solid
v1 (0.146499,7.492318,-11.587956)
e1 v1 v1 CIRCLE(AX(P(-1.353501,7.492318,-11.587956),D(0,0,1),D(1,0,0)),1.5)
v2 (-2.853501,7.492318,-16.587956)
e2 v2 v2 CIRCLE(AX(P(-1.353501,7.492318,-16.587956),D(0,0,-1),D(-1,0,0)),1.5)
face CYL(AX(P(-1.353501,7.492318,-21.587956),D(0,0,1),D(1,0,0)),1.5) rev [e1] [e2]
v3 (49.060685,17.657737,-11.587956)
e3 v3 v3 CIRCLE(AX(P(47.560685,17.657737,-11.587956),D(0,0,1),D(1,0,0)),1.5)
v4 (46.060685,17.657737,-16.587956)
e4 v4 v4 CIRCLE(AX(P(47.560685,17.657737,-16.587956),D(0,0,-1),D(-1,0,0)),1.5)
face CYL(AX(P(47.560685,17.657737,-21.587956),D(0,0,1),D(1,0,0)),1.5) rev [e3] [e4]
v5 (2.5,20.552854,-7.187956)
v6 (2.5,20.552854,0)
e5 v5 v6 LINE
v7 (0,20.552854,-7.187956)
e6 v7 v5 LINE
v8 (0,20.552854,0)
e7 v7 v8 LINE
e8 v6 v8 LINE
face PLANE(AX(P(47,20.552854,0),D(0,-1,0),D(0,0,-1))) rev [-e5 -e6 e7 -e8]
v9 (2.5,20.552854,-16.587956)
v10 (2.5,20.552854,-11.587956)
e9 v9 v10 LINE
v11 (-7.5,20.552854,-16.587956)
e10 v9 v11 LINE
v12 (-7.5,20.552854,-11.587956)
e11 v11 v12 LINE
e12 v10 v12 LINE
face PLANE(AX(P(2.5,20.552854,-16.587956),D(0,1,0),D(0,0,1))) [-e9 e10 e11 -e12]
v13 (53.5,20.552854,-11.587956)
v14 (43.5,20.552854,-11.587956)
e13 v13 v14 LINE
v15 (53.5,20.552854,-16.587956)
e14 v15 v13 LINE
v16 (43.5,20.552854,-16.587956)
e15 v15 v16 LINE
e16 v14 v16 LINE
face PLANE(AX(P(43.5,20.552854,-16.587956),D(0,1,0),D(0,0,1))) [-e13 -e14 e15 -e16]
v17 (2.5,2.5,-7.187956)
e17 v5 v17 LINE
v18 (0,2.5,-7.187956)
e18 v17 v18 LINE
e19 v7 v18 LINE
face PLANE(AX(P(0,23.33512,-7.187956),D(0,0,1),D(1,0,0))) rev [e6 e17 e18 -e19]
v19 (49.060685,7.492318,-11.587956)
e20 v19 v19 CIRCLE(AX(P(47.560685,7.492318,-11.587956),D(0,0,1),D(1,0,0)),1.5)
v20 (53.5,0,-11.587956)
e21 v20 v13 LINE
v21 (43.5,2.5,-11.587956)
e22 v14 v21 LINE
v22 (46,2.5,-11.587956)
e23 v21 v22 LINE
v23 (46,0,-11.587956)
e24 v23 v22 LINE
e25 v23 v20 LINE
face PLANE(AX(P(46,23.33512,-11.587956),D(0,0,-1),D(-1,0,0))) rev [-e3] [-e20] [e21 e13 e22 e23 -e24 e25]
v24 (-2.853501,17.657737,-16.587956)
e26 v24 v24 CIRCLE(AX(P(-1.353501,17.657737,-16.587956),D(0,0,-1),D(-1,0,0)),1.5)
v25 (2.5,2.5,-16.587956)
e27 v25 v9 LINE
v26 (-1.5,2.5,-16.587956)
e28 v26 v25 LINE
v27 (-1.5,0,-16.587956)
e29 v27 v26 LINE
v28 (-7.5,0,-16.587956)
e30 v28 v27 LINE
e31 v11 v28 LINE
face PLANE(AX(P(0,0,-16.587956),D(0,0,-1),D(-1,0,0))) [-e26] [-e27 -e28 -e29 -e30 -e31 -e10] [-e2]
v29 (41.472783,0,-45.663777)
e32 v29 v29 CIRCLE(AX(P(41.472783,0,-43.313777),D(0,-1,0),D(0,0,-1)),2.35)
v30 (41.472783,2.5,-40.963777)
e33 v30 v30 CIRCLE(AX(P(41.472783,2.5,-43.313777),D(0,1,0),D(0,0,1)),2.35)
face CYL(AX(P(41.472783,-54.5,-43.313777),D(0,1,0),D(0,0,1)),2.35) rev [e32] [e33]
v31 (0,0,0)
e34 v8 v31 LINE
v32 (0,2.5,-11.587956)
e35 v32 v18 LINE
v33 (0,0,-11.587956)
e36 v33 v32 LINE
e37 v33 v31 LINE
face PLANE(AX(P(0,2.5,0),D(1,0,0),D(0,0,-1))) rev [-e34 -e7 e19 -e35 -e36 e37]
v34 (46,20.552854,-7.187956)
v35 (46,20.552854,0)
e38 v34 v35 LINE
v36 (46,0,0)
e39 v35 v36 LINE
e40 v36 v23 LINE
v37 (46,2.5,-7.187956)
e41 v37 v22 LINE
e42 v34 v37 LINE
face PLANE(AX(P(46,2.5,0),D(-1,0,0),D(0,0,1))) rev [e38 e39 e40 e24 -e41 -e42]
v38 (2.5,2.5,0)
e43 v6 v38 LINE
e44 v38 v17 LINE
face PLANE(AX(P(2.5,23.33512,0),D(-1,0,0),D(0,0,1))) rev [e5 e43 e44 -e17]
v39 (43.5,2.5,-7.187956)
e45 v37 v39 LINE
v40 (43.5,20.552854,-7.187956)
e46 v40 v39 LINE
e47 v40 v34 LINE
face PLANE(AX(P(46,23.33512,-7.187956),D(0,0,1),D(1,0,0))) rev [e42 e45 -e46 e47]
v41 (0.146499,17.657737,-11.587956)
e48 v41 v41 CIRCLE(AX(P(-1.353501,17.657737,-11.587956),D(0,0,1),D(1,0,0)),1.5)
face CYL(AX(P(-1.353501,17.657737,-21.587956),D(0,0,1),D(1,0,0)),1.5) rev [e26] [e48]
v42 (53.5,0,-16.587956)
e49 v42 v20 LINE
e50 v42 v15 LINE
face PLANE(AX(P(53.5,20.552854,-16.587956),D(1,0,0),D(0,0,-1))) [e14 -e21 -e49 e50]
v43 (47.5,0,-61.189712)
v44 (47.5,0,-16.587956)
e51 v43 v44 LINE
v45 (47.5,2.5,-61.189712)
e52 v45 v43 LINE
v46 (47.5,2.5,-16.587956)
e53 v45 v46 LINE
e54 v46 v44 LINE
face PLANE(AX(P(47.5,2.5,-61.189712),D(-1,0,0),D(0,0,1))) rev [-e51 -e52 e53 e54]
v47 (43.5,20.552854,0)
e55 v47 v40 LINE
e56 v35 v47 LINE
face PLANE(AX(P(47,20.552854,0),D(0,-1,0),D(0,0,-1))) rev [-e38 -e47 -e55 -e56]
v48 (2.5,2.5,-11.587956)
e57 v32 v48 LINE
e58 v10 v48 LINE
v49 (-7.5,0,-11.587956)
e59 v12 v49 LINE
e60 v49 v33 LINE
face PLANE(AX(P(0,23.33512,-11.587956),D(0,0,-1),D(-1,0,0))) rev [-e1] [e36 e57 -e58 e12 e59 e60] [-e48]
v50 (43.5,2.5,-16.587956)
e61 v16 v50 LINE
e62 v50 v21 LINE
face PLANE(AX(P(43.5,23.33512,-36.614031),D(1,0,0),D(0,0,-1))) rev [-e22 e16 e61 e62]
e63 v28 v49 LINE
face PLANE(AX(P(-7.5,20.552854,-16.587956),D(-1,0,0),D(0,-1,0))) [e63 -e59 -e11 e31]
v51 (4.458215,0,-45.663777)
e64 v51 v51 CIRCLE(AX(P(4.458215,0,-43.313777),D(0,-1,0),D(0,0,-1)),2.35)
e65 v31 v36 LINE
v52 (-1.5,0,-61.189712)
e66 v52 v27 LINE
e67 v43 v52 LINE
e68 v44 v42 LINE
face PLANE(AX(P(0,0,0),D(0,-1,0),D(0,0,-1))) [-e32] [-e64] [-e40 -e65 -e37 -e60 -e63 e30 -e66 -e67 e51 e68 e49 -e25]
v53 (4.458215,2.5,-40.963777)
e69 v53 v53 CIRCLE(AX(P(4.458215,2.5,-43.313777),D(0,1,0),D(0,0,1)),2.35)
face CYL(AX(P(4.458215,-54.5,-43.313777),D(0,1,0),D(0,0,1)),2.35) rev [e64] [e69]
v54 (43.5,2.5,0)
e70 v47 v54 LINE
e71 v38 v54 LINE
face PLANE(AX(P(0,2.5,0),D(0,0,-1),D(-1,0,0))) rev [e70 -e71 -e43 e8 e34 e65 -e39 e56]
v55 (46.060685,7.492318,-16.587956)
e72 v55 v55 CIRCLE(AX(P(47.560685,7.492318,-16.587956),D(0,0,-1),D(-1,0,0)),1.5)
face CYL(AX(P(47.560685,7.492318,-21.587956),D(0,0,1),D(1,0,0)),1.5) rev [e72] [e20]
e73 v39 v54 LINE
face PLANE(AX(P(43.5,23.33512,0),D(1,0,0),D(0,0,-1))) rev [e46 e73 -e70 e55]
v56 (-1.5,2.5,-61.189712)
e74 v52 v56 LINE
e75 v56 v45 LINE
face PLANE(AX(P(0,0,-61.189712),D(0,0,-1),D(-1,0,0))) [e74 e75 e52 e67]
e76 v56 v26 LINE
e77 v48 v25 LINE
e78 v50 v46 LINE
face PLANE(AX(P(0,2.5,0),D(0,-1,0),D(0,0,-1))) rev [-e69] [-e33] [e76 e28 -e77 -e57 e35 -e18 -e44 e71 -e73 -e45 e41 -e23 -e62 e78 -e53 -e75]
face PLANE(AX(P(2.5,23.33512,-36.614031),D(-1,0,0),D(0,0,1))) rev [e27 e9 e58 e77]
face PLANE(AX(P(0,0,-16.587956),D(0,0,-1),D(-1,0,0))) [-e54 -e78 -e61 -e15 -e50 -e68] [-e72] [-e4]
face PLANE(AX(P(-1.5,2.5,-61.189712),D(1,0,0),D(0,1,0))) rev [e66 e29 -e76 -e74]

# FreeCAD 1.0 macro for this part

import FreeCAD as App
import Part
import Sketcher
Q = App.Units.Quantity

doc = App.newDocument("Part")
body = doc.addObject("PartDesign::Body", "Body")

# Sketch on XZ plane
sketch1 = body.newObject("Sketcher::SketchObject", "Sketch")
sketch1.AttachmentSupport = (doc.getObject("XZ_Plane"), [""])
sketch1.MapMode = "FlatFace"
sketch1.addGeometry(Part.LineSegment(App.Vector(0, -36.614031, 0), App.Vector(0, 0, 0)), False)
sketch1.addGeometry(Part.LineSegment(App.Vector(0, 0, 0), App.Vector(46, 0, 0)), False)
sketch1.addGeometry(Part.LineSegment(App.Vector(46, 0, 0), App.Vector(46, -36.614031, 0)), False)
sketch1.addGeometry(Part.LineSegment(App.Vector(46, -36.614031, 0), App.Vector(0, -36.614031, 0)), False)
sketch1.addConstraint(Sketcher.Constraint("Coincident", 0, 2, 1, 1))
sketch1.addConstraint(Sketcher.Constraint("Coincident", 1, 2, 2, 1))
sketch1.addConstraint(Sketcher.Constraint("Coincident", 2, 2, 3, 1))
sketch1.addConstraint(Sketcher.Constraint("Coincident", 3, 2, 0, 1))
sketch1.addConstraint(Sketcher.Constraint("Vertical", 0))
sketch1.addConstraint(Sketcher.Constraint("Horizontal", 1))
sketch1.addConstraint(Sketcher.Constraint("Vertical", 2))
sketch1.addConstraint(Sketcher.Constraint("Horizontal", 3))
sketch1.addConstraint(Sketcher.Constraint("Coincident", 0, 2, -1, 1))
sketch1.addConstraint(Sketcher.Constraint("DistanceX", 1, 1, 1, 2, Q("46 mm")))
sketch1.addConstraint(Sketcher.Constraint("DistanceY", 0, 1, 0, 2, Q("36.614031 mm")))
pad1 = body.newObject("PartDesign::Pad", "Pad")
pad1.Profile = sketch1
pad1.Length = 2.5
pad1.Reversed = True

# Sketch on XZ plane
sketch2 = body.newObject("Sketcher::SketchObject", "Sketch001")
sketch2.AttachmentSupport = (doc.getObject("XZ_Plane"), [""])
sketch2.MapMode = "FlatFace"
sketch2.AttachmentOffset = App.Placement(App.Vector(0, 0, -2.5), App.Rotation())
sketch2.addGeometry(Part.LineSegment(App.Vector(0, -36.614031, 0), App.Vector(0, -11.587956, 0)), False)
sketch2.addGeometry(Part.LineSegment(App.Vector(0, -11.587956, 0), App.Vector(2.5, -11.587956, 0)), False)
sketch2.addGeometry(Part.LineSegment(App.Vector(2.5, -11.587956, 0), App.Vector(2.5, -36.614031, 0)), False)
sketch2.addGeometry(Part.LineSegment(App.Vector(2.5, -36.614031, 0), App.Vector(0, -36.614031, 0)), False)
sketch2.addGeometry(Part.LineSegment(App.Vector(0, -7.187956, 0), App.Vector(0, 0, 0)), False)
sketch2.addGeometry(Part.LineSegment(App.Vector(0, 0, 0), App.Vector(2.5, 0, 0)), False)
sketch2.addGeometry(Part.LineSegment(App.Vector(2.5, 0, 0), App.Vector(2.5, -7.187956, 0)), False)
sketch2.addGeometry(Part.LineSegment(App.Vector(2.5, -7.187956, 0), App.Vector(0, -7.187956, 0)), False)
sketch2.addGeometry(Part.LineSegment(App.Vector(43.5, -7.187956, 0), App.Vector(43.5, 0, 0)), False)
sketch2.addGeometry(Part.LineSegment(App.Vector(43.5, 0, 0), App.Vector(46, 0, 0)), False)
sketch2.addGeometry(Part.LineSegment(App.Vector(46, 0, 0), App.Vector(46, -7.187956, 0)), False)
sketch2.addGeometry(Part.LineSegment(App.Vector(46, -7.187956, 0), App.Vector(43.5, -7.187956, 0)), False)
sketch2.addGeometry(Part.LineSegment(App.Vector(43.5, -36.614031, 0), App.Vector(43.5, -11.587956, 0)), False)
sketch2.addGeometry(Part.LineSegment(App.Vector(43.5, -11.587956, 0), App.Vector(46, -11.587956, 0)), False)
sketch2.addGeometry(Part.LineSegment(App.Vector(46, -11.587956, 0), App.Vector(46, -36.614031, 0)), False)
sketch2.addGeometry(Part.LineSegment(App.Vector(46, -36.614031, 0), App.Vector(43.5, -36.614031, 0)), False)
sketch2.addConstraint(Sketcher.Constraint("Coincident", 0, 2, 1, 1))
sketch2.addConstraint(Sketcher.Constraint("Coincident", 1, 2, 2, 1))
sketch2.addConstraint(Sketcher.Constraint("Coincident", 2, 2, 3, 1))
sketch2.addConstraint(Sketcher.Constraint("Coincident", 3, 2, 0, 1))
sketch2.addConstraint(Sketcher.Constraint("Coincident", 4, 2, 5, 1))
sketch2.addConstraint(Sketcher.Constraint("Coincident", 5, 2, 6, 1))
sketch2.addConstraint(Sketcher.Constraint("Coincident", 6, 2, 7, 1))
sketch2.addConstraint(Sketcher.Constraint("Coincident", 7, 2, 4, 1))
sketch2.addConstraint(Sketcher.Constraint("Coincident", 8, 2, 9, 1))
sketch2.addConstraint(Sketcher.Constraint("Coincident", 9, 2, 10, 1))
sketch2.addConstraint(Sketcher.Constraint("Coincident", 10, 2, 11, 1))
sketch2.addConstraint(Sketcher.Constraint("Coincident", 11, 2, 8, 1))
sketch2.addConstraint(Sketcher.Constraint("Coincident", 12, 2, 13, 1))
sketch2.addConstraint(Sketcher.Constraint("Coincident", 13, 2, 14, 1))
sketch2.addConstraint(Sketcher.Constraint("Coincident", 14, 2, 15, 1))
sketch2.addConstraint(Sketcher.Constraint("Coincident", 15, 2, 12, 1))
sketch2.addConstraint(Sketcher.Constraint("Vertical", 0))
sketch2.addConstraint(Sketcher.Constraint("Horizontal", 1))
sketch2.addConstraint(Sketcher.Constraint("Vertical", 2))
sketch2.addConstraint(Sketcher.Constraint("Horizontal", 3))
sketch2.addConstraint(Sketcher.Constraint("Vertical", 4))
sketch2.addConstraint(Sketcher.Constraint("Horizontal", 5))
sketch2.addConstraint(Sketcher.Constraint("Vertical", 6))
sketch2.addConstraint(Sketcher.Constraint("Horizontal", 7))
sketch2.addConstraint(Sketcher.Constraint("Vertical", 8))
sketch2.addConstraint(Sketcher.Constraint("Horizontal", 9))
sketch2.addConstraint(Sketcher.Constraint("Vertical", 10))
sketch2.addConstraint(Sketcher.Constraint("Horizontal", 11))
sketch2.addConstraint(Sketcher.Constraint("Vertical", 12))
sketch2.addConstraint(Sketcher.Constraint("Horizontal", 13))
sketch2.addConstraint(Sketcher.Constraint("Vertical", 14))
sketch2.addConstraint(Sketcher.Constraint("Horizontal", 15))
sketch2.addConstraint(Sketcher.Constraint("Coincident", 4, 2, -1, 1))
sketch2.addConstraint(Sketcher.Constraint("PointOnObject", 0, 2, -2))
sketch2.addConstraint(Sketcher.Constraint("PointOnObject", 8, 2, -1))
sketch2.addConstraint(Sketcher.Constraint("Horizontal", 7, 2, 10, 2))
sketch2.addConstraint(Sketcher.Constraint("Horizontal", 1, 2, 12, 2))
sketch2.addConstraint(Sketcher.Constraint("Horizontal", 3, 2, 14, 2))
sketch2.addConstraint(Sketcher.Constraint("Vertical", 2, 2, 5, 2))
sketch2.addConstraint(Sketcher.Constraint("Vertical", 11, 2, 12, 2))
sketch2.addConstraint(Sketcher.Constraint("Vertical", 10, 2, 13, 2))
sketch2.addConstraint(Sketcher.Constraint("Equal", 7, 9))
sketch2.addConstraint(Sketcher.Constraint("DistanceX", 1, 1, 1, 2, Q("2.5 mm")))
sketch2.addConstraint(Sketcher.Constraint("DistanceX", -1, 1, 9, 2, Q("46 mm")))
sketch2.addConstraint(Sketcher.Constraint("DistanceY", 1, 2, 6, 2, Q("4.4 mm")))
sketch2.addConstraint(Sketcher.Constraint("DistanceY", 0, 1, 0, 2, Q("25.026075 mm")))
sketch2.addConstraint(Sketcher.Constraint("DistanceY", 4, 1, 4, 2, Q("7.187956 mm")))
pad2 = body.newObject("PartDesign::Pad", "Pad001")
pad2.Profile = sketch2
pad2.Length = 20.83512
pad2.Reversed = True

# Sketch on XY plane
sketch3 = body.newObject("Sketcher::SketchObject", "Sketch002")
sketch3.AttachmentSupport = (doc.getObject("XY_Plane"), [""])
sketch3.MapMode = "FlatFace"
sketch3.AttachmentOffset = App.Placement(App.Vector(0, 0, -11.587956), App.Rotation())
sketch3.addGeometry(Part.LineSegment(App.Vector(-7.5, 20.552854, 0), App.Vector(-7.5, 0, 0)), False)
sketch3.addGeometry(Part.LineSegment(App.Vector(-7.5, 0, 0), App.Vector(2.5, 0, 0)), False)
sketch3.addGeometry(Part.LineSegment(App.Vector(2.5, 0, 0), App.Vector(2.5, 20.552854, 0)), False)
sketch3.addGeometry(Part.LineSegment(App.Vector(2.5, 20.552854, 0), App.Vector(-7.5, 20.552854, 0)), False)
sketch3.addGeometry(Part.LineSegment(App.Vector(43.5, 20.552854, 0), App.Vector(43.5, 0, 0)), False)
sketch3.addGeometry(Part.LineSegment(App.Vector(43.5, 0, 0), App.Vector(53.5, 0, 0)), False)
sketch3.addGeometry(Part.LineSegment(App.Vector(53.5, 0, 0), App.Vector(53.5, 20.552854, 0)), False)
sketch3.addGeometry(Part.LineSegment(App.Vector(53.5, 20.552854, 0), App.Vector(43.5, 20.552854, 0)), False)
sketch3.addConstraint(Sketcher.Constraint("Coincident", 0, 2, 1, 1))
sketch3.addConstraint(Sketcher.Constraint("Coincident", 1, 2, 2, 1))
sketch3.addConstraint(Sketcher.Constraint("Coincident", 2, 2, 3, 1))
sketch3.addConstraint(Sketcher.Constraint("Coincident", 3, 2, 0, 1))
sketch3.addConstraint(Sketcher.Constraint("Coincident", 4, 2, 5, 1))
sketch3.addConstraint(Sketcher.Constraint("Coincident", 5, 2, 6, 1))
sketch3.addConstraint(Sketcher.Constraint("Coincident", 6, 2, 7, 1))
sketch3.addConstraint(Sketcher.Constraint("Coincident", 7, 2, 4, 1))
sketch3.addConstraint(Sketcher.Constraint("Vertical", 0))
sketch3.addConstraint(Sketcher.Constraint("Horizontal", 1))
sketch3.addConstraint(Sketcher.Constraint("Vertical", 2))
sketch3.addConstraint(Sketcher.Constraint("Horizontal", 3))
sketch3.addConstraint(Sketcher.Constraint("Vertical", 4))
sketch3.addConstraint(Sketcher.Constraint("Horizontal", 5))
sketch3.addConstraint(Sketcher.Constraint("Vertical", 6))
sketch3.addConstraint(Sketcher.Constraint("Horizontal", 7))
sketch3.addConstraint(Sketcher.Constraint("PointOnObject", 0, 2, -1))
sketch3.addConstraint(Sketcher.Constraint("PointOnObject", 4, 2, -1))
sketch3.addConstraint(Sketcher.Constraint("Horizontal", 3, 2, 6, 2))
sketch3.addConstraint(Sketcher.Constraint("Equal", 3, 5))
sketch3.addConstraint(Sketcher.Constraint("DistanceX", 1, 1, 1, 2, Q("10 mm")))
sketch3.addConstraint(Sketcher.Constraint("DistanceX", 1, 2, 4, 2, Q("41 mm")))
sketch3.addConstraint(Sketcher.Constraint("DistanceX", 0, 2, -1, 1, Q("7.5 mm")))
sketch3.addConstraint(Sketcher.Constraint("DistanceY", 0, 2, 0, 1, Q("20.552854 mm")))
pad3 = body.newObject("PartDesign::Pad", "Pad002")
pad3.Profile = sketch3
pad3.Length = 5
pad3.Reversed = True

# Sketch on YZ plane
sketch4 = body.newObject("Sketcher::SketchObject", "Sketch003")
sketch4.AttachmentSupport = (doc.getObject("YZ_Plane"), [""])
sketch4.MapMode = "FlatFace"
sketch4.addGeometry(Part.LineSegment(App.Vector(23.33512, -36.614031, 0), App.Vector(0, -36.614031, 0)), False)
sketch4.addGeometry(Part.LineSegment(App.Vector(0, -36.614031, 0), App.Vector(0, -16.587956, 0)), False)
sketch4.addGeometry(Part.LineSegment(App.Vector(0, -16.587956, 0), App.Vector(23.33512, -16.587956, 0)), False)
sketch4.addGeometry(Part.LineSegment(App.Vector(23.33512, -16.587956, 0), App.Vector(23.33512, -36.614031, 0)), False)
sketch4.addConstraint(Sketcher.Constraint("Coincident", 0, 2, 1, 1))
sketch4.addConstraint(Sketcher.Constraint("Coincident", 1, 2, 2, 1))
sketch4.addConstraint(Sketcher.Constraint("Coincident", 2, 2, 3, 1))
sketch4.addConstraint(Sketcher.Constraint("Coincident", 3, 2, 0, 1))
sketch4.addConstraint(Sketcher.Constraint("Horizontal", 0))
sketch4.addConstraint(Sketcher.Constraint("Vertical", 1))
sketch4.addConstraint(Sketcher.Constraint("Horizontal", 2))
sketch4.addConstraint(Sketcher.Constraint("Vertical", 3))
sketch4.addConstraint(Sketcher.Constraint("PointOnObject", 0, 2, -2))
sketch4.addConstraint(Sketcher.Constraint("DistanceX", 0, 2, 0, 1, Q("23.33512 mm")))
sketch4.addConstraint(Sketcher.Constraint("DistanceY", 1, 1, 1, 2, Q("20.026075 mm")))
sketch4.addConstraint(Sketcher.Constraint("DistanceY", 0, 2, -1, 1, Q("36.614031 mm")))
pocket1 = body.newObject("PartDesign::Pocket", "Pocket")
pocket1.Profile = sketch4
pocket1.Length = 100
pocket1.Reversed = True

# Sketch on XY plane
sketch5 = body.newObject("Sketcher::SketchObject", "Sketch004")
sketch5.AttachmentSupport = (doc.getObject("XY_Plane"), [""])
sketch5.MapMode = "FlatFace"
sketch5.AttachmentOffset = App.Placement(App.Vector(0, 0, -16.587956), App.Rotation())
sketch5.addGeometry(Part.LineSegment(App.Vector(47.5, 2.5, 0), App.Vector(47.5, 0, 0)), False)
sketch5.addGeometry(Part.LineSegment(App.Vector(47.5, 0, 0), App.Vector(-1.5, 0, 0)), False)
sketch5.addGeometry(Part.LineSegment(App.Vector(-1.5, 0, 0), App.Vector(-1.5, 2.5, 0)), False)
sketch5.addGeometry(Part.LineSegment(App.Vector(-1.5, 2.5, 0), App.Vector(47.5, 2.5, 0)), False)
sketch5.addConstraint(Sketcher.Constraint("Coincident", 0, 2, 1, 1))
sketch5.addConstraint(Sketcher.Constraint("Coincident", 1, 2, 2, 1))
sketch5.addConstraint(Sketcher.Constraint("Coincident", 2, 2, 3, 1))
sketch5.addConstraint(Sketcher.Constraint("Coincident", 3, 2, 0, 1))
sketch5.addConstraint(Sketcher.Constraint("Vertical", 0))
sketch5.addConstraint(Sketcher.Constraint("Horizontal", 1))
sketch5.addConstraint(Sketcher.Constraint("Vertical", 2))
sketch5.addConstraint(Sketcher.Constraint("Horizontal", 3))
sketch5.addConstraint(Sketcher.Constraint("PointOnObject", 0, 2, -1))
sketch5.addConstraint(Sketcher.Constraint("DistanceX", 1, 2, 1, 1, Q("49 mm")))
sketch5.addConstraint(Sketcher.Constraint("DistanceY", 0, 2, 0, 1, Q("2.5 mm")))
sketch5.addConstraint(Sketcher.Constraint("DistanceX", -1, 1, 0, 2, Q("47.5 mm")))
pad4 = body.newObject("PartDesign::Pad", "Pad003")
pad4.Profile = sketch5
pad4.Length = 44.601757
pad4.Reversed = True

# Sketch on XZ plane
sketch6 = body.newObject("Sketcher::SketchObject", "Sketch005")
sketch6.AttachmentSupport = (doc.getObject("XZ_Plane"), [""])
sketch6.MapMode = "FlatFace"
sketch6.AttachmentOffset = App.Placement(App.Vector(0, 0, -2.5), App.Rotation())
sketch6.addGeometry(Part.Circle(App.Vector(4.458215, -43.313777, 0), App.Vector(0, 0, 1), 2.35), False)
sketch6.addGeometry(Part.Circle(App.Vector(41.472783, -43.313777, 0), App.Vector(0, 0, 1), 2.35), False)
sketch6.addConstraint(Sketcher.Constraint("Equal", 0, 1))
sketch6.addConstraint(Sketcher.Constraint("Horizontal", 0, 3, 1, 3))
sketch6.addConstraint(Sketcher.Constraint("Diameter", 0, Q("4.7 mm")))
sketch6.addConstraint(Sketcher.Constraint("DistanceX", 0, 3, 1, 3, Q("37.014568 mm")))
sketch6.addConstraint(Sketcher.Constraint("DistanceX", -1, 1, 0, 3, Q("4.458215 mm")))
sketch6.addConstraint(Sketcher.Constraint("DistanceY", 0, 3, -1, 1, Q("43.313777 mm")))
pocket2 = body.newObject("PartDesign::Pocket", "Pocket001")
pocket2.Profile = sketch6
pocket2.Length = 57
pocket2.Reversed = True

# Sketch on YZ plane
sketch7 = body.newObject("Sketcher::SketchObject", "Sketch006")
sketch7.AttachmentSupport = (doc.getObject("YZ_Plane"), [""])
sketch7.MapMode = "FlatFace"
sketch7.addGeometry(Part.LineSegment(App.Vector(23.33512, -16.587956, 0), App.Vector(20.552854, -16.587956, 0)), False)
sketch7.addGeometry(Part.LineSegment(App.Vector(20.552854, -16.587956, 0), App.Vector(20.552854, 0, 0)), False)
sketch7.addGeometry(Part.LineSegment(App.Vector(20.552854, 0, 0), App.Vector(23.33512, 0, 0)), False)
sketch7.addGeometry(Part.LineSegment(App.Vector(23.33512, 0, 0), App.Vector(23.33512, -16.587956, 0)), False)
sketch7.addConstraint(Sketcher.Constraint("Coincident", 0, 2, 1, 1))
sketch7.addConstraint(Sketcher.Constraint("Coincident", 1, 2, 2, 1))
sketch7.addConstraint(Sketcher.Constraint("Coincident", 2, 2, 3, 1))
sketch7.addConstraint(Sketcher.Constraint("Coincident", 3, 2, 0, 1))
sketch7.addConstraint(Sketcher.Constraint("Horizontal", 0))
sketch7.addConstraint(Sketcher.Constraint("Vertical", 1))
sketch7.addConstraint(Sketcher.Constraint("Horizontal", 2))
sketch7.addConstraint(Sketcher.Constraint("Vertical", 3))
sketch7.addConstraint(Sketcher.Constraint("PointOnObject", 1, 2, -1))
sketch7.addConstraint(Sketcher.Constraint("DistanceX", 0, 2, 0, 1, Q("2.782265 mm")))
sketch7.addConstraint(Sketcher.Constraint("DistanceY", 1, 1, 1, 2, Q("16.587956 mm")))
sketch7.addConstraint(Sketcher.Constraint("DistanceX", -1, 1, 2, 2, Q("23.33512 mm")))
pocket3 = body.newObject("PartDesign::Pocket", "Pocket002")
pocket3.Profile = sketch7
pocket3.Length = 47
pocket3.Reversed = True

# Sketch on XY plane
sketch8 = body.newObject("Sketcher::SketchObject", "Sketch007")
sketch8.AttachmentSupport = (doc.getObject("XY_Plane"), [""])
sketch8.MapMode = "FlatFace"
sketch8.AttachmentOffset = App.Placement(App.Vector(0, 0, -11.587956), App.Rotation())
sketch8.addGeometry(Part.Circle(App.Vector(-1.353501, 17.657737, 0), App.Vector(0, 0, 1), 1.5), False)
sketch8.addGeometry(Part.Circle(App.Vector(-1.353501, 7.492318, 0), App.Vector(0, 0, 1), 1.5), False)
sketch8.addGeometry(Part.Circle(App.Vector(47.560685, 17.657737, 0), App.Vector(0, 0, 1), 1.5), False)
sketch8.addGeometry(Part.Circle(App.Vector(47.560685, 7.492318, 0), App.Vector(0, 0, 1), 1.5), False)
sketch8.addConstraint(Sketcher.Constraint("Equal", 0, 1))
sketch8.addConstraint(Sketcher.Constraint("Equal", 1, 2))
sketch8.addConstraint(Sketcher.Constraint("Equal", 2, 3))
sketch8.addConstraint(Sketcher.Constraint("Horizontal", 0, 3, 2, 3))
sketch8.addConstraint(Sketcher.Constraint("Horizontal", 1, 3, 3, 3))
sketch8.addConstraint(Sketcher.Constraint("Vertical", 0, 3, 1, 3))
sketch8.addConstraint(Sketcher.Constraint("Vertical", 2, 3, 3, 3))
sketch8.addConstraint(Sketcher.Constraint("Diameter", 0, Q("3 mm")))
sketch8.addConstraint(Sketcher.Constraint("DistanceX", 0, 3, -1, 1, Q("1.353501 mm")))
sketch8.addConstraint(Sketcher.Constraint("DistanceY", -1, 1, 1, 3, Q("7.492318 mm")))
sketch8.addConstraint(Sketcher.Constraint("DistanceY", 1, 3, 0, 3, Q("10.165419 mm")))
sketch8.addConstraint(Sketcher.Constraint("DistanceX", -1, 1, 2, 3, Q("47.560685 mm")))
pocket4 = body.newObject("PartDesign::Pocket", "Pocket003")
pocket4.Profile = sketch8
pocket4.Length = 10

doc.recompute()
